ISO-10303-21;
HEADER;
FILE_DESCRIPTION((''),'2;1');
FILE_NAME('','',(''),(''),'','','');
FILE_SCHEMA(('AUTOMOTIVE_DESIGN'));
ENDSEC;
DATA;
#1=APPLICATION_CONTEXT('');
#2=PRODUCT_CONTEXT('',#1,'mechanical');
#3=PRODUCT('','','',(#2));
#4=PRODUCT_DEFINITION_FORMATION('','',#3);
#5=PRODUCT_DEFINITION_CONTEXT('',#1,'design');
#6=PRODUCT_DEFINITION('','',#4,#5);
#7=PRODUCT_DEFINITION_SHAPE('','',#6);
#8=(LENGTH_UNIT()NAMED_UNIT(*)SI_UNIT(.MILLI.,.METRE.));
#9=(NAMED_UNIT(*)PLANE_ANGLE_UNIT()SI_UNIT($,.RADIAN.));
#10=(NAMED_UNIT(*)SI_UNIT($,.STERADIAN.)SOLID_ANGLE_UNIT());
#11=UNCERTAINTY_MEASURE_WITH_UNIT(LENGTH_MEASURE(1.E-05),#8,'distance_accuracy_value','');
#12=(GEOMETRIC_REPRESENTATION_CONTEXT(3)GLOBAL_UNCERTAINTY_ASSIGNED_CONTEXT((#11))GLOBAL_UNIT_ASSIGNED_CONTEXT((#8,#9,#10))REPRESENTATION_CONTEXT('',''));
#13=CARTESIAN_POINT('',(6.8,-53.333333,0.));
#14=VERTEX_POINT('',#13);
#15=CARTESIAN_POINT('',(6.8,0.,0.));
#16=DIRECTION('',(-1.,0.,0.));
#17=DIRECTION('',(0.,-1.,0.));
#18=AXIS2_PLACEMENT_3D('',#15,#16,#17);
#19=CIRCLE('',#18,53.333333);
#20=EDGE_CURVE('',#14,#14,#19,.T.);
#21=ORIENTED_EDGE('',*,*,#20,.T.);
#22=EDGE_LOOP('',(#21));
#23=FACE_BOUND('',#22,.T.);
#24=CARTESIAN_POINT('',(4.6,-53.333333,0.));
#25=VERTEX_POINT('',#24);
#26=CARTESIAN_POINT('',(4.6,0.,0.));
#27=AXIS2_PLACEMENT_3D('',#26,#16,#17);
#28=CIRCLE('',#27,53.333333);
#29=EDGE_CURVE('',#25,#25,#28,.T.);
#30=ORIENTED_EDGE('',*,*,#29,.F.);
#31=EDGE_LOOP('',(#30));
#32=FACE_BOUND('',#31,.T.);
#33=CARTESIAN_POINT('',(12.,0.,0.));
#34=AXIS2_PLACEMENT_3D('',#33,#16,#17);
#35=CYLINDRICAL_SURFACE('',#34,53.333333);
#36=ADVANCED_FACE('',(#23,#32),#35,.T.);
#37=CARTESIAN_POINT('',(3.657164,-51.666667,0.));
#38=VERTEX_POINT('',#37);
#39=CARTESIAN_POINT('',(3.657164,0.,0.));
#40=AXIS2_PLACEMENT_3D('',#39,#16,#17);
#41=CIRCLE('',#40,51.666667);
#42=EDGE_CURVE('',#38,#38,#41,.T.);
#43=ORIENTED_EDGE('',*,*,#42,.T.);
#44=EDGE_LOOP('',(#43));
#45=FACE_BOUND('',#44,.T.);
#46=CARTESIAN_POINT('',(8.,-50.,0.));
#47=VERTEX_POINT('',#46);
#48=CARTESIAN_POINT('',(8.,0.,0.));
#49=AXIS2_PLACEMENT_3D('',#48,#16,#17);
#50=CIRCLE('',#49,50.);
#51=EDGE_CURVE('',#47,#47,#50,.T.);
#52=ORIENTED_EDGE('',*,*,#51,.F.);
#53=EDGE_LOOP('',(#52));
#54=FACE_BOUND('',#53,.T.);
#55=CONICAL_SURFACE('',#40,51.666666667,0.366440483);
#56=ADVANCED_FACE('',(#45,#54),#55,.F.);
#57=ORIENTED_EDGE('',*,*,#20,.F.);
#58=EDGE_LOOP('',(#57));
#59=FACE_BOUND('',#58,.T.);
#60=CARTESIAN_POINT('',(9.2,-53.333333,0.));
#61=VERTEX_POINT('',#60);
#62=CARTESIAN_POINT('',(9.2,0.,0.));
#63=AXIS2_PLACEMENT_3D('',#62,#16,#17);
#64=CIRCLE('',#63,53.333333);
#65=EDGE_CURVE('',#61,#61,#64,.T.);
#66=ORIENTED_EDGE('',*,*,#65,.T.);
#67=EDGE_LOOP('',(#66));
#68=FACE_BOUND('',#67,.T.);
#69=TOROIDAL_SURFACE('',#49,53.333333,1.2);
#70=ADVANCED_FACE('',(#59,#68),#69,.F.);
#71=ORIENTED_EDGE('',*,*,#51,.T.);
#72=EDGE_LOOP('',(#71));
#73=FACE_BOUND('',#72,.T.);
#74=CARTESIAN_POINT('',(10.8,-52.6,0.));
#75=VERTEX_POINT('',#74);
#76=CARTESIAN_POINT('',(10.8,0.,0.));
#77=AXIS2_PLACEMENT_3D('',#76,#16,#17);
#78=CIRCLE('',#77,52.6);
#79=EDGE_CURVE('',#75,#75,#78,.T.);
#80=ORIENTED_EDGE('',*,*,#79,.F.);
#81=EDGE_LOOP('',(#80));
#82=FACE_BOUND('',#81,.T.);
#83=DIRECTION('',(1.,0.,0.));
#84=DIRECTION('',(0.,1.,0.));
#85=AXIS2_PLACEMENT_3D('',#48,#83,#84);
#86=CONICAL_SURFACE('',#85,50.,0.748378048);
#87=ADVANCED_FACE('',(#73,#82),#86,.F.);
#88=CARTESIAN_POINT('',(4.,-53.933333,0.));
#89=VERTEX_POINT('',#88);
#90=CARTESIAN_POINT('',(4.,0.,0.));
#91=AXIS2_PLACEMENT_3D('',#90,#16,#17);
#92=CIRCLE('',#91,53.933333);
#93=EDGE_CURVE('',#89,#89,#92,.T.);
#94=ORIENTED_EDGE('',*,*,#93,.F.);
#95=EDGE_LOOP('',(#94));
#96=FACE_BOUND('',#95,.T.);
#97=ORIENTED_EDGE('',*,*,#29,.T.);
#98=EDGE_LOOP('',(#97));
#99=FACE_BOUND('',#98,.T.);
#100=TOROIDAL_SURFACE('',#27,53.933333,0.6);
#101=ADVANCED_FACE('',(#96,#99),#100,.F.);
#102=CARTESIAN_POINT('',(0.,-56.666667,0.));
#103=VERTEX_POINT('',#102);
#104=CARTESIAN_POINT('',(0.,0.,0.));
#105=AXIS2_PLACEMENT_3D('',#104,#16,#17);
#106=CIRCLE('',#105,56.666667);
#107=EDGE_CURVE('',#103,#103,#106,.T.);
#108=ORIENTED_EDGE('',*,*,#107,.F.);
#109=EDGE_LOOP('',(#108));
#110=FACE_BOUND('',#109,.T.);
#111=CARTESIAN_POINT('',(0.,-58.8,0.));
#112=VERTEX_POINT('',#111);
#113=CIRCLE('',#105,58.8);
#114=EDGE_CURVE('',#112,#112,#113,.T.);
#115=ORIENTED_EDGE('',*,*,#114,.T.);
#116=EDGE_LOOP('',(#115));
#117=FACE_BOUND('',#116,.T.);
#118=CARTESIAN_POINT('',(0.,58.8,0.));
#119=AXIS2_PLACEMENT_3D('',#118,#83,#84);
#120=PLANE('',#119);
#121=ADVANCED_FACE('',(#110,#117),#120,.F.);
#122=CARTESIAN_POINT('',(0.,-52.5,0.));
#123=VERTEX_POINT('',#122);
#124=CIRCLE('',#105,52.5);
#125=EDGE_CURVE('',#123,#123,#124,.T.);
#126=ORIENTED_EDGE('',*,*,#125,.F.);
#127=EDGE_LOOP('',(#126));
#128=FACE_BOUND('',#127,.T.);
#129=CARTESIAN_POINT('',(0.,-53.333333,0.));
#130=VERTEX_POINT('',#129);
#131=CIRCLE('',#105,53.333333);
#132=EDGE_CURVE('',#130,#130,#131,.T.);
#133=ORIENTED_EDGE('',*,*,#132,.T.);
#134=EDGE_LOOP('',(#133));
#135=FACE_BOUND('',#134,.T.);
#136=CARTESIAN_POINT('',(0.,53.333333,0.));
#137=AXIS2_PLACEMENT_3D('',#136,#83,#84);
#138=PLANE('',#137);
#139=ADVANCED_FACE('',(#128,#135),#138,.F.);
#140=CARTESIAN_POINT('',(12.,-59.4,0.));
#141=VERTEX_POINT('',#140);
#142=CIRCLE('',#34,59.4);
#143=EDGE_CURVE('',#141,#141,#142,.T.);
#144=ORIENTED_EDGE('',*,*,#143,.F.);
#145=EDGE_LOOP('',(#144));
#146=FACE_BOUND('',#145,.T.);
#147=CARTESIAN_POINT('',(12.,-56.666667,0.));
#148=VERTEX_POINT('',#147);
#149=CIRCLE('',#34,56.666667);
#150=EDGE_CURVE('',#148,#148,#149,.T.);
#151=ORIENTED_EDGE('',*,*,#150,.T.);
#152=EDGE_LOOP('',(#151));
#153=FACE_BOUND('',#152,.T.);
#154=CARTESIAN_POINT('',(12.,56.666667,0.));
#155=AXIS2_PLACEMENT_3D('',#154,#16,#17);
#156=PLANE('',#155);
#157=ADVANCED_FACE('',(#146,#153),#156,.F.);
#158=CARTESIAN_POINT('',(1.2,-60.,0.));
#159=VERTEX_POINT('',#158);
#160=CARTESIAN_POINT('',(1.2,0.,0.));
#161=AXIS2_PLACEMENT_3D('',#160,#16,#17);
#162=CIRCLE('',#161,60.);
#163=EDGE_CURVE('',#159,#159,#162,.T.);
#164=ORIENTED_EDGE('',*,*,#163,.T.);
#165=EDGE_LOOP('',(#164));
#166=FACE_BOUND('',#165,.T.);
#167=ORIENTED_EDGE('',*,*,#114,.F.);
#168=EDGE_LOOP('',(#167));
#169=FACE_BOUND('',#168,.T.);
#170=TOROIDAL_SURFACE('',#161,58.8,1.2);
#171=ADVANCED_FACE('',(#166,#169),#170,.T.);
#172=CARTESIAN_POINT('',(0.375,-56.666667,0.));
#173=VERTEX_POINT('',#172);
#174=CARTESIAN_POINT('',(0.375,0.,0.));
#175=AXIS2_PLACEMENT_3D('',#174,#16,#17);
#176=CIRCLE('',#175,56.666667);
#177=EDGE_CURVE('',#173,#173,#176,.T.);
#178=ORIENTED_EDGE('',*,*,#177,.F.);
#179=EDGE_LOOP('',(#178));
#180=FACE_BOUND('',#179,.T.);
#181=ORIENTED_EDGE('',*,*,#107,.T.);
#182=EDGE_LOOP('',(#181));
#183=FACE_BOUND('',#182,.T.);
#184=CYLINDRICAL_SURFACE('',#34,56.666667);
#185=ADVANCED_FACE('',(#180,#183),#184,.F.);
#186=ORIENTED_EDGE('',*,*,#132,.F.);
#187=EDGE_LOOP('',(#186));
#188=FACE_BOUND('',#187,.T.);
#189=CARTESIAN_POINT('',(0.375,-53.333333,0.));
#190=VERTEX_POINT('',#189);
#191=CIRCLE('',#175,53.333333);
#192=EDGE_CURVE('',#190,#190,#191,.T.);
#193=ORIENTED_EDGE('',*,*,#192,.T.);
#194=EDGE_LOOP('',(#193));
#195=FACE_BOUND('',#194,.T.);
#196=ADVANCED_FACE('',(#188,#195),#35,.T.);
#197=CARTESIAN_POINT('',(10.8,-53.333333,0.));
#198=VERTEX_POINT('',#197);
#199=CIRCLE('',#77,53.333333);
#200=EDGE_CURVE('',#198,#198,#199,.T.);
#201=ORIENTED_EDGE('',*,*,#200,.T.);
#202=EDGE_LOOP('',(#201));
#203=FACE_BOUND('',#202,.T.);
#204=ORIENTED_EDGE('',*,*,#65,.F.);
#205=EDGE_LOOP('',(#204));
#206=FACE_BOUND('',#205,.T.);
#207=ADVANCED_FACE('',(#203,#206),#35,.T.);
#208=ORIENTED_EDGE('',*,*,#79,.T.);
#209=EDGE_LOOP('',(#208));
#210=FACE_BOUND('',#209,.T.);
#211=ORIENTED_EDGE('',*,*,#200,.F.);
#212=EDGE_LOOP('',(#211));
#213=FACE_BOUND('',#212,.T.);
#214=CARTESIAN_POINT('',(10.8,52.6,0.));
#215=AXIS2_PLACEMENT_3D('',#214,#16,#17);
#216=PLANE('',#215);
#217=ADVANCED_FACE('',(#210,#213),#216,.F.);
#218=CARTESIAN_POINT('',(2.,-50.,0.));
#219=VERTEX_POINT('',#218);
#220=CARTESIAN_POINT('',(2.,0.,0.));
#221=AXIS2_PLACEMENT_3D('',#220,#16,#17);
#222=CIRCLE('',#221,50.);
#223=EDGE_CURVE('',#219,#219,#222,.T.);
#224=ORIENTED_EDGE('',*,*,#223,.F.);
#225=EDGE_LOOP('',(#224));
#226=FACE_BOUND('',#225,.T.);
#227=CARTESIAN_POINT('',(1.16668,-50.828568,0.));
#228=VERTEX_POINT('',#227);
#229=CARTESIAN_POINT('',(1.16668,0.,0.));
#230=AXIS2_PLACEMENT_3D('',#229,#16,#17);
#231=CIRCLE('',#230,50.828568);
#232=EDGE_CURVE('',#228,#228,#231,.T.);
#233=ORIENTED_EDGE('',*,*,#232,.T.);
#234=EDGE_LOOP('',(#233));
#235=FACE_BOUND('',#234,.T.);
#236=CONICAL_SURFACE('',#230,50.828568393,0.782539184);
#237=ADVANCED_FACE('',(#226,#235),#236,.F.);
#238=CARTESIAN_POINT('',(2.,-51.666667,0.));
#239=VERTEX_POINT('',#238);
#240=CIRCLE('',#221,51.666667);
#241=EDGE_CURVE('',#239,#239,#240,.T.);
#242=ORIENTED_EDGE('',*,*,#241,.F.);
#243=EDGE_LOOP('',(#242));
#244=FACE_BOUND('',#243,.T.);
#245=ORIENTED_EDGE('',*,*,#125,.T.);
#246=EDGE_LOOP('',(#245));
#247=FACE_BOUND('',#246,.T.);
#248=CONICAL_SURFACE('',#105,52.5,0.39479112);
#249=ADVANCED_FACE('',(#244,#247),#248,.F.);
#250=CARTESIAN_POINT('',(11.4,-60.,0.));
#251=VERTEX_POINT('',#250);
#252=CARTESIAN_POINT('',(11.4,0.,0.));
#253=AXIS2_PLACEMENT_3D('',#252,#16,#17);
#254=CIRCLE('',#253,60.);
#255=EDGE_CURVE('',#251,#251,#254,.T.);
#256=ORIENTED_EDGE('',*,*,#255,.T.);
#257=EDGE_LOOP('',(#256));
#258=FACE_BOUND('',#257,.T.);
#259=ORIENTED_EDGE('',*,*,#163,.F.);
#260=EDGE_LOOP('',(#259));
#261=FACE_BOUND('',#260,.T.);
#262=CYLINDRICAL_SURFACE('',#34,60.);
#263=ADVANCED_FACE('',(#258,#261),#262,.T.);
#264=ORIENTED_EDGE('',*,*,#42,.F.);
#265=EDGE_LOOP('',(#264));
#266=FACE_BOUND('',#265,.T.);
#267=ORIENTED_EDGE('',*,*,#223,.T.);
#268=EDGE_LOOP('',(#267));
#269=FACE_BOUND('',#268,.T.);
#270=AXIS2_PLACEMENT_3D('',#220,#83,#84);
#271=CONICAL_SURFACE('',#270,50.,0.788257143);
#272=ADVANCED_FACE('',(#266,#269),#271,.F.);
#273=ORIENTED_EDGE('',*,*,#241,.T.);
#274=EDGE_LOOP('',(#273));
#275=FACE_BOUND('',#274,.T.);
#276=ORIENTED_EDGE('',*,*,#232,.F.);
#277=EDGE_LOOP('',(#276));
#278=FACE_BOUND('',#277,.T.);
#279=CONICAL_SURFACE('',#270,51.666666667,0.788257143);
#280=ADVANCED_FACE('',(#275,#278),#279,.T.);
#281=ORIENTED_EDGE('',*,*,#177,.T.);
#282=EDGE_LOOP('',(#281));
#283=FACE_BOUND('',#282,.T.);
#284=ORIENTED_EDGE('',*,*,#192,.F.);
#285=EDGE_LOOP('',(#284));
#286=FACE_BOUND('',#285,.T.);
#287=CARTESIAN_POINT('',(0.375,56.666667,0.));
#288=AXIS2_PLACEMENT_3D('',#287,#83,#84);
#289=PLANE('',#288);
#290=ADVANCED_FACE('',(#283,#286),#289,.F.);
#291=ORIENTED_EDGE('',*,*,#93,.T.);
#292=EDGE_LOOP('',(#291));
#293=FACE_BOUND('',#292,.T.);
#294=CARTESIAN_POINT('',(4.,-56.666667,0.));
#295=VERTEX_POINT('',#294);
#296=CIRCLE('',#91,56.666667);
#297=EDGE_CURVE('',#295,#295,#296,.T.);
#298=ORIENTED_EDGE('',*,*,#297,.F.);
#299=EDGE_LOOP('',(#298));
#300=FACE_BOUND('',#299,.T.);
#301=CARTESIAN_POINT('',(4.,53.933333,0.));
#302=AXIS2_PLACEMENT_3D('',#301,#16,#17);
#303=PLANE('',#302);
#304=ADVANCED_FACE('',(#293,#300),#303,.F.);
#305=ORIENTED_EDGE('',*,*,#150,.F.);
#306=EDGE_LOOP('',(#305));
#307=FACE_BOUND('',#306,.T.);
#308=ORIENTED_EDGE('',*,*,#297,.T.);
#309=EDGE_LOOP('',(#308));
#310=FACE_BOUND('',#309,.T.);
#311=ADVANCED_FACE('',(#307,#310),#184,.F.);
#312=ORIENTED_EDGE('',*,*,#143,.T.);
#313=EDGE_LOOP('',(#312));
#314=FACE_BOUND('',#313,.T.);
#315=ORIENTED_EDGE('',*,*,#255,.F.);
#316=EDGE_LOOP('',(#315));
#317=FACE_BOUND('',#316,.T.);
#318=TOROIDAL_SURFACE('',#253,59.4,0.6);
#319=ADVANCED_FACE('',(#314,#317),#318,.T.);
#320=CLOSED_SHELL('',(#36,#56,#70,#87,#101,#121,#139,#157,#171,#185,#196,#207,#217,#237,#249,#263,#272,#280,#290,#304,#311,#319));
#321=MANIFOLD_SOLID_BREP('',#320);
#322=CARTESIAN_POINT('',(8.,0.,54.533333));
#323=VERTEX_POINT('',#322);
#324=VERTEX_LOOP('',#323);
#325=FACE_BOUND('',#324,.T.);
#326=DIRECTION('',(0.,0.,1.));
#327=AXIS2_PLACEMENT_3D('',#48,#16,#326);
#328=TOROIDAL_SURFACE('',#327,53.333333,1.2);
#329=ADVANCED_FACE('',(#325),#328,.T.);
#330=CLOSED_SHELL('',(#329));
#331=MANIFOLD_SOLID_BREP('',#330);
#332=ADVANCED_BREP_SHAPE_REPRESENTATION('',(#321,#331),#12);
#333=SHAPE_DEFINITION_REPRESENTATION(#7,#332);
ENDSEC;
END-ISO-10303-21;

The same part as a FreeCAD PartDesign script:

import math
import FreeCAD as App
import Part
import Sketcher
Q = App.Units.Quantity

doc = App.newDocument("Part")
body = doc.addObject("PartDesign::Body", "Body")

# Sketch on XY plane
sketch1 = doc.addObject("Sketcher::SketchObject", "Sketch")
body.addObject(sketch1)
sketch1.AttachmentSupport = (doc.XY_Plane, [""])
sketch1.MapMode = "FlatFace"
sketch1.addGeometry([
    Part.LineSegment(App.Vector(0, 56.67, 0), App.Vector(0.38, 56.67, 0)),  # 0
    Part.LineSegment(App.Vector(0.38, 56.67, 0), App.Vector(0.38, 53.33, 0)),  # 1
    Part.LineSegment(App.Vector(0.38, 53.33, 0), App.Vector(0, 53.33, 0)),  # 2
    Part.LineSegment(App.Vector(0, 53.33, 0), App.Vector(0, 52.5, 0)),  # 3
    Part.LineSegment(App.Vector(0, 52.5, 0), App.Vector(2, 51.67, 0)),  # 4
    Part.LineSegment(App.Vector(2, 51.67, 0), App.Vector(1.17, 50.83, 0)),  # 5
    Part.LineSegment(App.Vector(1.17, 50.83, 0), App.Vector(2, 50, 0)),  # 6
    Part.LineSegment(App.Vector(2, 50, 0), App.Vector(3.66, 51.67, 0)),  # 7
    Part.LineSegment(App.Vector(3.66, 51.67, 0), App.Vector(8, 50, 0)),  # 8
    Part.LineSegment(App.Vector(8, 50, 0), App.Vector(10.8, 52.6, 0)),  # 9
    Part.LineSegment(App.Vector(10.8, 52.6, 0), App.Vector(10.8, 53.33, 0)),  # 10
    Part.LineSegment(App.Vector(10.8, 53.33, 0), App.Vector(9.2, 53.33, 0)),  # 11
    Part.ArcOfCircle(Part.Circle(App.Vector(8, 53.33, 0), App.Vector(0, 0, 1), 1.2), math.radians(180), math.radians(360)),  # 12
    Part.LineSegment(App.Vector(6.8, 53.33, 0), App.Vector(4.6, 53.33, 0)),  # 13
    Part.ArcOfCircle(Part.Circle(App.Vector(4.6, 53.93, 0), App.Vector(0, 0, 1), 0.6), math.radians(-180), math.radians(-90)),  # 14
    Part.LineSegment(App.Vector(4, 53.93, 0), App.Vector(4, 56.67, 0)),  # 15
    Part.LineSegment(App.Vector(4, 56.67, 0), App.Vector(12, 56.67, 0)),  # 16
    Part.LineSegment(App.Vector(12, 56.67, 0), App.Vector(12, 59.4, 0)),  # 17
    Part.ArcOfCircle(Part.Circle(App.Vector(11.4, 59.4, 0), App.Vector(0, 0, 1), 0.6), math.radians(0), math.radians(90)),  # 18
    Part.LineSegment(App.Vector(11.4, 60, 0), App.Vector(1.2, 60, 0)),  # 19
    Part.ArcOfCircle(Part.Circle(App.Vector(1.2, 58.8, 0), App.Vector(0, 0, 1), 1.2), math.radians(90), math.radians(180)),  # 20
    Part.LineSegment(App.Vector(0, 58.8, 0), App.Vector(0, 56.67, 0)),  # 21
], False)
sketch1.addConstraint([
    Sketcher.Constraint("Coincident", 0, 2, 1, 1),
    Sketcher.Constraint("Coincident", 1, 2, 2, 1),
    Sketcher.Constraint("Coincident", 2, 2, 3, 1),
    Sketcher.Constraint("Coincident", 3, 2, 4, 1),
    Sketcher.Constraint("Coincident", 4, 2, 5, 1),
    Sketcher.Constraint("Coincident", 5, 2, 6, 1),
    Sketcher.Constraint("Coincident", 6, 2, 7, 1),
    Sketcher.Constraint("Coincident", 7, 2, 8, 1),
    Sketcher.Constraint("Coincident", 8, 2, 9, 1),
    Sketcher.Constraint("Coincident", 9, 2, 10, 1),
    Sketcher.Constraint("Coincident", 10, 2, 11, 1),
    Sketcher.Constraint("Coincident", 11, 2, 12, 2),
    Sketcher.Constraint("Coincident", 12, 1, 13, 1),
    Sketcher.Constraint("Tangent", 13, 2, 14, 2),
    Sketcher.Constraint("Tangent", 14, 1, 15, 1),
    Sketcher.Constraint("Coincident", 15, 2, 16, 1),
    Sketcher.Constraint("Coincident", 16, 2, 17, 1),
    Sketcher.Constraint("Tangent", 17, 2, 18, 1),
    Sketcher.Constraint("Tangent", 18, 2, 19, 1),
    Sketcher.Constraint("Tangent", 19, 2, 20, 1),
    Sketcher.Constraint("Tangent", 20, 2, 21, 1),
    Sketcher.Constraint("Coincident", 21, 2, 0, 1),
    Sketcher.Constraint("Horizontal", 0),
    Sketcher.Constraint("Vertical", 1),
    Sketcher.Constraint("Horizontal", 2),
    Sketcher.Constraint("Vertical", 3),
    Sketcher.Constraint("Vertical", 10),
    Sketcher.Constraint("Horizontal", 11),
    Sketcher.Constraint("Horizontal", 13),
    Sketcher.Constraint("Vertical", 15),
    Sketcher.Constraint("Horizontal", 16),
    Sketcher.Constraint("Vertical", 17),
    Sketcher.Constraint("Horizontal", 19),
    Sketcher.Constraint("Vertical", 21),
    Sketcher.Constraint("Equal", 14, 18),
    Sketcher.Constraint("Equal", 12, 20),
    Sketcher.Constraint("PointOnObject", 2, 2, -2),
    Sketcher.Constraint("PointOnObject", 20, 2, -2),
    Sketcher.Constraint("Perpendicular", 5, 6),
    Sketcher.Constraint("Perpendicular", 6, 7),
    Sketcher.Constraint("Horizontal", 12, 3, 1, 2),
    Sketcher.Constraint("Horizontal", 4, 2, 7, 2),
    Sketcher.Constraint("Horizontal", 6, 2, 8, 2),
    Sketcher.Constraint("Horizontal", 2, 2, 10, 2),
    Sketcher.Constraint("Horizontal", 11, 2, 12, 1),
    Sketcher.Constraint("Horizontal", 0, 2, 15, 2),
    Sketcher.Constraint("Vertical", 4, 2, 6, 2),
    Sketcher.Constraint("Vertical", 12, 3, 8, 2),
    Sketcher.Constraint("Equal", 15, 17),
    Sketcher.Constraint("Radius", 12, Q("1.2 mm")),
    Sketcher.Constraint("Radius", 14, Q("0.6 mm")),
    Sketcher.Constraint("DistanceX", 16, 1, 16, 2, Q("8 mm")),
    Sketcher.Constraint("DistanceX", 11, 2, 11, 1, Q("1.6 mm")),
    Sketcher.Constraint("DistanceX", 13, 2, 13, 1, Q("2.2 mm")),
    Sketcher.Constraint("DistanceX", 19, 2, 19, 1, Q("10.2 mm")),
    Sketcher.Constraint("DistanceX", -1, 1, 4, 2, Q("2 mm")),
    Sketcher.Constraint("DistanceY", -1, 1, 6, 2, Q("50 mm")),
    Sketcher.Constraint("DistanceY", -1, 1, 18, 2, Q("60 mm")),
    Sketcher.Constraint("DistanceY", 4, 2, 0, 2, Q("5 mm")),
    Sketcher.Constraint("DistanceY", -1, 1, 3, 2, Q("52.5 mm")),
    Sketcher.Constraint("DistanceY", -1, 1, 9, 2, Q("52.6 mm")),
    Sketcher.Constraint("DistanceX", 0, 1, 0, 2, Q("0.375 mm")),
    Sketcher.Constraint("DistanceY", 5, 2, 4, 2, Q("0.838098 mm")),
    Sketcher.Constraint("DistanceY", 1, 2, 1, 1, Q("3.333333 mm")),
])
revolution = doc.addObject("PartDesign::Revolution", "Revolution")
body.addObject(revolution)
revolution.Profile = sketch1
revolution.ReferenceAxis = (sketch1, ["H_Axis"])
revolution.Angle = 360
body2 = doc.addObject("PartDesign::Body", "Body001")

# Sketch on XY plane
sketch2 = doc.addObject("Sketcher::SketchObject", "Sketch001")
body2.addObject(sketch2)
sketch2.AttachmentSupport = (doc.getObject("XY_Plane001"), [""])
sketch2.MapMode = "FlatFace"
sketch2.addGeometry(Part.Circle(App.Vector(8, 53.3, 0), App.Vector(0, 0, 1), 1.2), False)
sketch2.addConstraint([
    Sketcher.Constraint("Diameter", 0, Q("2.4 mm")),
    Sketcher.Constraint("DistanceX", -1, 1, 0, 3, Q("8 mm")),
    Sketcher.Constraint("DistanceY", -1, 1, 0, 3, Q("53.333333 mm")),
])
revolution2 = doc.addObject("PartDesign::Revolution", "Revolution001")
body2.addObject(revolution2)
revolution2.Profile = sketch2
revolution2.ReferenceAxis = (sketch2, ["H_Axis"])
revolution2.Angle = 360

doc.recompute()
